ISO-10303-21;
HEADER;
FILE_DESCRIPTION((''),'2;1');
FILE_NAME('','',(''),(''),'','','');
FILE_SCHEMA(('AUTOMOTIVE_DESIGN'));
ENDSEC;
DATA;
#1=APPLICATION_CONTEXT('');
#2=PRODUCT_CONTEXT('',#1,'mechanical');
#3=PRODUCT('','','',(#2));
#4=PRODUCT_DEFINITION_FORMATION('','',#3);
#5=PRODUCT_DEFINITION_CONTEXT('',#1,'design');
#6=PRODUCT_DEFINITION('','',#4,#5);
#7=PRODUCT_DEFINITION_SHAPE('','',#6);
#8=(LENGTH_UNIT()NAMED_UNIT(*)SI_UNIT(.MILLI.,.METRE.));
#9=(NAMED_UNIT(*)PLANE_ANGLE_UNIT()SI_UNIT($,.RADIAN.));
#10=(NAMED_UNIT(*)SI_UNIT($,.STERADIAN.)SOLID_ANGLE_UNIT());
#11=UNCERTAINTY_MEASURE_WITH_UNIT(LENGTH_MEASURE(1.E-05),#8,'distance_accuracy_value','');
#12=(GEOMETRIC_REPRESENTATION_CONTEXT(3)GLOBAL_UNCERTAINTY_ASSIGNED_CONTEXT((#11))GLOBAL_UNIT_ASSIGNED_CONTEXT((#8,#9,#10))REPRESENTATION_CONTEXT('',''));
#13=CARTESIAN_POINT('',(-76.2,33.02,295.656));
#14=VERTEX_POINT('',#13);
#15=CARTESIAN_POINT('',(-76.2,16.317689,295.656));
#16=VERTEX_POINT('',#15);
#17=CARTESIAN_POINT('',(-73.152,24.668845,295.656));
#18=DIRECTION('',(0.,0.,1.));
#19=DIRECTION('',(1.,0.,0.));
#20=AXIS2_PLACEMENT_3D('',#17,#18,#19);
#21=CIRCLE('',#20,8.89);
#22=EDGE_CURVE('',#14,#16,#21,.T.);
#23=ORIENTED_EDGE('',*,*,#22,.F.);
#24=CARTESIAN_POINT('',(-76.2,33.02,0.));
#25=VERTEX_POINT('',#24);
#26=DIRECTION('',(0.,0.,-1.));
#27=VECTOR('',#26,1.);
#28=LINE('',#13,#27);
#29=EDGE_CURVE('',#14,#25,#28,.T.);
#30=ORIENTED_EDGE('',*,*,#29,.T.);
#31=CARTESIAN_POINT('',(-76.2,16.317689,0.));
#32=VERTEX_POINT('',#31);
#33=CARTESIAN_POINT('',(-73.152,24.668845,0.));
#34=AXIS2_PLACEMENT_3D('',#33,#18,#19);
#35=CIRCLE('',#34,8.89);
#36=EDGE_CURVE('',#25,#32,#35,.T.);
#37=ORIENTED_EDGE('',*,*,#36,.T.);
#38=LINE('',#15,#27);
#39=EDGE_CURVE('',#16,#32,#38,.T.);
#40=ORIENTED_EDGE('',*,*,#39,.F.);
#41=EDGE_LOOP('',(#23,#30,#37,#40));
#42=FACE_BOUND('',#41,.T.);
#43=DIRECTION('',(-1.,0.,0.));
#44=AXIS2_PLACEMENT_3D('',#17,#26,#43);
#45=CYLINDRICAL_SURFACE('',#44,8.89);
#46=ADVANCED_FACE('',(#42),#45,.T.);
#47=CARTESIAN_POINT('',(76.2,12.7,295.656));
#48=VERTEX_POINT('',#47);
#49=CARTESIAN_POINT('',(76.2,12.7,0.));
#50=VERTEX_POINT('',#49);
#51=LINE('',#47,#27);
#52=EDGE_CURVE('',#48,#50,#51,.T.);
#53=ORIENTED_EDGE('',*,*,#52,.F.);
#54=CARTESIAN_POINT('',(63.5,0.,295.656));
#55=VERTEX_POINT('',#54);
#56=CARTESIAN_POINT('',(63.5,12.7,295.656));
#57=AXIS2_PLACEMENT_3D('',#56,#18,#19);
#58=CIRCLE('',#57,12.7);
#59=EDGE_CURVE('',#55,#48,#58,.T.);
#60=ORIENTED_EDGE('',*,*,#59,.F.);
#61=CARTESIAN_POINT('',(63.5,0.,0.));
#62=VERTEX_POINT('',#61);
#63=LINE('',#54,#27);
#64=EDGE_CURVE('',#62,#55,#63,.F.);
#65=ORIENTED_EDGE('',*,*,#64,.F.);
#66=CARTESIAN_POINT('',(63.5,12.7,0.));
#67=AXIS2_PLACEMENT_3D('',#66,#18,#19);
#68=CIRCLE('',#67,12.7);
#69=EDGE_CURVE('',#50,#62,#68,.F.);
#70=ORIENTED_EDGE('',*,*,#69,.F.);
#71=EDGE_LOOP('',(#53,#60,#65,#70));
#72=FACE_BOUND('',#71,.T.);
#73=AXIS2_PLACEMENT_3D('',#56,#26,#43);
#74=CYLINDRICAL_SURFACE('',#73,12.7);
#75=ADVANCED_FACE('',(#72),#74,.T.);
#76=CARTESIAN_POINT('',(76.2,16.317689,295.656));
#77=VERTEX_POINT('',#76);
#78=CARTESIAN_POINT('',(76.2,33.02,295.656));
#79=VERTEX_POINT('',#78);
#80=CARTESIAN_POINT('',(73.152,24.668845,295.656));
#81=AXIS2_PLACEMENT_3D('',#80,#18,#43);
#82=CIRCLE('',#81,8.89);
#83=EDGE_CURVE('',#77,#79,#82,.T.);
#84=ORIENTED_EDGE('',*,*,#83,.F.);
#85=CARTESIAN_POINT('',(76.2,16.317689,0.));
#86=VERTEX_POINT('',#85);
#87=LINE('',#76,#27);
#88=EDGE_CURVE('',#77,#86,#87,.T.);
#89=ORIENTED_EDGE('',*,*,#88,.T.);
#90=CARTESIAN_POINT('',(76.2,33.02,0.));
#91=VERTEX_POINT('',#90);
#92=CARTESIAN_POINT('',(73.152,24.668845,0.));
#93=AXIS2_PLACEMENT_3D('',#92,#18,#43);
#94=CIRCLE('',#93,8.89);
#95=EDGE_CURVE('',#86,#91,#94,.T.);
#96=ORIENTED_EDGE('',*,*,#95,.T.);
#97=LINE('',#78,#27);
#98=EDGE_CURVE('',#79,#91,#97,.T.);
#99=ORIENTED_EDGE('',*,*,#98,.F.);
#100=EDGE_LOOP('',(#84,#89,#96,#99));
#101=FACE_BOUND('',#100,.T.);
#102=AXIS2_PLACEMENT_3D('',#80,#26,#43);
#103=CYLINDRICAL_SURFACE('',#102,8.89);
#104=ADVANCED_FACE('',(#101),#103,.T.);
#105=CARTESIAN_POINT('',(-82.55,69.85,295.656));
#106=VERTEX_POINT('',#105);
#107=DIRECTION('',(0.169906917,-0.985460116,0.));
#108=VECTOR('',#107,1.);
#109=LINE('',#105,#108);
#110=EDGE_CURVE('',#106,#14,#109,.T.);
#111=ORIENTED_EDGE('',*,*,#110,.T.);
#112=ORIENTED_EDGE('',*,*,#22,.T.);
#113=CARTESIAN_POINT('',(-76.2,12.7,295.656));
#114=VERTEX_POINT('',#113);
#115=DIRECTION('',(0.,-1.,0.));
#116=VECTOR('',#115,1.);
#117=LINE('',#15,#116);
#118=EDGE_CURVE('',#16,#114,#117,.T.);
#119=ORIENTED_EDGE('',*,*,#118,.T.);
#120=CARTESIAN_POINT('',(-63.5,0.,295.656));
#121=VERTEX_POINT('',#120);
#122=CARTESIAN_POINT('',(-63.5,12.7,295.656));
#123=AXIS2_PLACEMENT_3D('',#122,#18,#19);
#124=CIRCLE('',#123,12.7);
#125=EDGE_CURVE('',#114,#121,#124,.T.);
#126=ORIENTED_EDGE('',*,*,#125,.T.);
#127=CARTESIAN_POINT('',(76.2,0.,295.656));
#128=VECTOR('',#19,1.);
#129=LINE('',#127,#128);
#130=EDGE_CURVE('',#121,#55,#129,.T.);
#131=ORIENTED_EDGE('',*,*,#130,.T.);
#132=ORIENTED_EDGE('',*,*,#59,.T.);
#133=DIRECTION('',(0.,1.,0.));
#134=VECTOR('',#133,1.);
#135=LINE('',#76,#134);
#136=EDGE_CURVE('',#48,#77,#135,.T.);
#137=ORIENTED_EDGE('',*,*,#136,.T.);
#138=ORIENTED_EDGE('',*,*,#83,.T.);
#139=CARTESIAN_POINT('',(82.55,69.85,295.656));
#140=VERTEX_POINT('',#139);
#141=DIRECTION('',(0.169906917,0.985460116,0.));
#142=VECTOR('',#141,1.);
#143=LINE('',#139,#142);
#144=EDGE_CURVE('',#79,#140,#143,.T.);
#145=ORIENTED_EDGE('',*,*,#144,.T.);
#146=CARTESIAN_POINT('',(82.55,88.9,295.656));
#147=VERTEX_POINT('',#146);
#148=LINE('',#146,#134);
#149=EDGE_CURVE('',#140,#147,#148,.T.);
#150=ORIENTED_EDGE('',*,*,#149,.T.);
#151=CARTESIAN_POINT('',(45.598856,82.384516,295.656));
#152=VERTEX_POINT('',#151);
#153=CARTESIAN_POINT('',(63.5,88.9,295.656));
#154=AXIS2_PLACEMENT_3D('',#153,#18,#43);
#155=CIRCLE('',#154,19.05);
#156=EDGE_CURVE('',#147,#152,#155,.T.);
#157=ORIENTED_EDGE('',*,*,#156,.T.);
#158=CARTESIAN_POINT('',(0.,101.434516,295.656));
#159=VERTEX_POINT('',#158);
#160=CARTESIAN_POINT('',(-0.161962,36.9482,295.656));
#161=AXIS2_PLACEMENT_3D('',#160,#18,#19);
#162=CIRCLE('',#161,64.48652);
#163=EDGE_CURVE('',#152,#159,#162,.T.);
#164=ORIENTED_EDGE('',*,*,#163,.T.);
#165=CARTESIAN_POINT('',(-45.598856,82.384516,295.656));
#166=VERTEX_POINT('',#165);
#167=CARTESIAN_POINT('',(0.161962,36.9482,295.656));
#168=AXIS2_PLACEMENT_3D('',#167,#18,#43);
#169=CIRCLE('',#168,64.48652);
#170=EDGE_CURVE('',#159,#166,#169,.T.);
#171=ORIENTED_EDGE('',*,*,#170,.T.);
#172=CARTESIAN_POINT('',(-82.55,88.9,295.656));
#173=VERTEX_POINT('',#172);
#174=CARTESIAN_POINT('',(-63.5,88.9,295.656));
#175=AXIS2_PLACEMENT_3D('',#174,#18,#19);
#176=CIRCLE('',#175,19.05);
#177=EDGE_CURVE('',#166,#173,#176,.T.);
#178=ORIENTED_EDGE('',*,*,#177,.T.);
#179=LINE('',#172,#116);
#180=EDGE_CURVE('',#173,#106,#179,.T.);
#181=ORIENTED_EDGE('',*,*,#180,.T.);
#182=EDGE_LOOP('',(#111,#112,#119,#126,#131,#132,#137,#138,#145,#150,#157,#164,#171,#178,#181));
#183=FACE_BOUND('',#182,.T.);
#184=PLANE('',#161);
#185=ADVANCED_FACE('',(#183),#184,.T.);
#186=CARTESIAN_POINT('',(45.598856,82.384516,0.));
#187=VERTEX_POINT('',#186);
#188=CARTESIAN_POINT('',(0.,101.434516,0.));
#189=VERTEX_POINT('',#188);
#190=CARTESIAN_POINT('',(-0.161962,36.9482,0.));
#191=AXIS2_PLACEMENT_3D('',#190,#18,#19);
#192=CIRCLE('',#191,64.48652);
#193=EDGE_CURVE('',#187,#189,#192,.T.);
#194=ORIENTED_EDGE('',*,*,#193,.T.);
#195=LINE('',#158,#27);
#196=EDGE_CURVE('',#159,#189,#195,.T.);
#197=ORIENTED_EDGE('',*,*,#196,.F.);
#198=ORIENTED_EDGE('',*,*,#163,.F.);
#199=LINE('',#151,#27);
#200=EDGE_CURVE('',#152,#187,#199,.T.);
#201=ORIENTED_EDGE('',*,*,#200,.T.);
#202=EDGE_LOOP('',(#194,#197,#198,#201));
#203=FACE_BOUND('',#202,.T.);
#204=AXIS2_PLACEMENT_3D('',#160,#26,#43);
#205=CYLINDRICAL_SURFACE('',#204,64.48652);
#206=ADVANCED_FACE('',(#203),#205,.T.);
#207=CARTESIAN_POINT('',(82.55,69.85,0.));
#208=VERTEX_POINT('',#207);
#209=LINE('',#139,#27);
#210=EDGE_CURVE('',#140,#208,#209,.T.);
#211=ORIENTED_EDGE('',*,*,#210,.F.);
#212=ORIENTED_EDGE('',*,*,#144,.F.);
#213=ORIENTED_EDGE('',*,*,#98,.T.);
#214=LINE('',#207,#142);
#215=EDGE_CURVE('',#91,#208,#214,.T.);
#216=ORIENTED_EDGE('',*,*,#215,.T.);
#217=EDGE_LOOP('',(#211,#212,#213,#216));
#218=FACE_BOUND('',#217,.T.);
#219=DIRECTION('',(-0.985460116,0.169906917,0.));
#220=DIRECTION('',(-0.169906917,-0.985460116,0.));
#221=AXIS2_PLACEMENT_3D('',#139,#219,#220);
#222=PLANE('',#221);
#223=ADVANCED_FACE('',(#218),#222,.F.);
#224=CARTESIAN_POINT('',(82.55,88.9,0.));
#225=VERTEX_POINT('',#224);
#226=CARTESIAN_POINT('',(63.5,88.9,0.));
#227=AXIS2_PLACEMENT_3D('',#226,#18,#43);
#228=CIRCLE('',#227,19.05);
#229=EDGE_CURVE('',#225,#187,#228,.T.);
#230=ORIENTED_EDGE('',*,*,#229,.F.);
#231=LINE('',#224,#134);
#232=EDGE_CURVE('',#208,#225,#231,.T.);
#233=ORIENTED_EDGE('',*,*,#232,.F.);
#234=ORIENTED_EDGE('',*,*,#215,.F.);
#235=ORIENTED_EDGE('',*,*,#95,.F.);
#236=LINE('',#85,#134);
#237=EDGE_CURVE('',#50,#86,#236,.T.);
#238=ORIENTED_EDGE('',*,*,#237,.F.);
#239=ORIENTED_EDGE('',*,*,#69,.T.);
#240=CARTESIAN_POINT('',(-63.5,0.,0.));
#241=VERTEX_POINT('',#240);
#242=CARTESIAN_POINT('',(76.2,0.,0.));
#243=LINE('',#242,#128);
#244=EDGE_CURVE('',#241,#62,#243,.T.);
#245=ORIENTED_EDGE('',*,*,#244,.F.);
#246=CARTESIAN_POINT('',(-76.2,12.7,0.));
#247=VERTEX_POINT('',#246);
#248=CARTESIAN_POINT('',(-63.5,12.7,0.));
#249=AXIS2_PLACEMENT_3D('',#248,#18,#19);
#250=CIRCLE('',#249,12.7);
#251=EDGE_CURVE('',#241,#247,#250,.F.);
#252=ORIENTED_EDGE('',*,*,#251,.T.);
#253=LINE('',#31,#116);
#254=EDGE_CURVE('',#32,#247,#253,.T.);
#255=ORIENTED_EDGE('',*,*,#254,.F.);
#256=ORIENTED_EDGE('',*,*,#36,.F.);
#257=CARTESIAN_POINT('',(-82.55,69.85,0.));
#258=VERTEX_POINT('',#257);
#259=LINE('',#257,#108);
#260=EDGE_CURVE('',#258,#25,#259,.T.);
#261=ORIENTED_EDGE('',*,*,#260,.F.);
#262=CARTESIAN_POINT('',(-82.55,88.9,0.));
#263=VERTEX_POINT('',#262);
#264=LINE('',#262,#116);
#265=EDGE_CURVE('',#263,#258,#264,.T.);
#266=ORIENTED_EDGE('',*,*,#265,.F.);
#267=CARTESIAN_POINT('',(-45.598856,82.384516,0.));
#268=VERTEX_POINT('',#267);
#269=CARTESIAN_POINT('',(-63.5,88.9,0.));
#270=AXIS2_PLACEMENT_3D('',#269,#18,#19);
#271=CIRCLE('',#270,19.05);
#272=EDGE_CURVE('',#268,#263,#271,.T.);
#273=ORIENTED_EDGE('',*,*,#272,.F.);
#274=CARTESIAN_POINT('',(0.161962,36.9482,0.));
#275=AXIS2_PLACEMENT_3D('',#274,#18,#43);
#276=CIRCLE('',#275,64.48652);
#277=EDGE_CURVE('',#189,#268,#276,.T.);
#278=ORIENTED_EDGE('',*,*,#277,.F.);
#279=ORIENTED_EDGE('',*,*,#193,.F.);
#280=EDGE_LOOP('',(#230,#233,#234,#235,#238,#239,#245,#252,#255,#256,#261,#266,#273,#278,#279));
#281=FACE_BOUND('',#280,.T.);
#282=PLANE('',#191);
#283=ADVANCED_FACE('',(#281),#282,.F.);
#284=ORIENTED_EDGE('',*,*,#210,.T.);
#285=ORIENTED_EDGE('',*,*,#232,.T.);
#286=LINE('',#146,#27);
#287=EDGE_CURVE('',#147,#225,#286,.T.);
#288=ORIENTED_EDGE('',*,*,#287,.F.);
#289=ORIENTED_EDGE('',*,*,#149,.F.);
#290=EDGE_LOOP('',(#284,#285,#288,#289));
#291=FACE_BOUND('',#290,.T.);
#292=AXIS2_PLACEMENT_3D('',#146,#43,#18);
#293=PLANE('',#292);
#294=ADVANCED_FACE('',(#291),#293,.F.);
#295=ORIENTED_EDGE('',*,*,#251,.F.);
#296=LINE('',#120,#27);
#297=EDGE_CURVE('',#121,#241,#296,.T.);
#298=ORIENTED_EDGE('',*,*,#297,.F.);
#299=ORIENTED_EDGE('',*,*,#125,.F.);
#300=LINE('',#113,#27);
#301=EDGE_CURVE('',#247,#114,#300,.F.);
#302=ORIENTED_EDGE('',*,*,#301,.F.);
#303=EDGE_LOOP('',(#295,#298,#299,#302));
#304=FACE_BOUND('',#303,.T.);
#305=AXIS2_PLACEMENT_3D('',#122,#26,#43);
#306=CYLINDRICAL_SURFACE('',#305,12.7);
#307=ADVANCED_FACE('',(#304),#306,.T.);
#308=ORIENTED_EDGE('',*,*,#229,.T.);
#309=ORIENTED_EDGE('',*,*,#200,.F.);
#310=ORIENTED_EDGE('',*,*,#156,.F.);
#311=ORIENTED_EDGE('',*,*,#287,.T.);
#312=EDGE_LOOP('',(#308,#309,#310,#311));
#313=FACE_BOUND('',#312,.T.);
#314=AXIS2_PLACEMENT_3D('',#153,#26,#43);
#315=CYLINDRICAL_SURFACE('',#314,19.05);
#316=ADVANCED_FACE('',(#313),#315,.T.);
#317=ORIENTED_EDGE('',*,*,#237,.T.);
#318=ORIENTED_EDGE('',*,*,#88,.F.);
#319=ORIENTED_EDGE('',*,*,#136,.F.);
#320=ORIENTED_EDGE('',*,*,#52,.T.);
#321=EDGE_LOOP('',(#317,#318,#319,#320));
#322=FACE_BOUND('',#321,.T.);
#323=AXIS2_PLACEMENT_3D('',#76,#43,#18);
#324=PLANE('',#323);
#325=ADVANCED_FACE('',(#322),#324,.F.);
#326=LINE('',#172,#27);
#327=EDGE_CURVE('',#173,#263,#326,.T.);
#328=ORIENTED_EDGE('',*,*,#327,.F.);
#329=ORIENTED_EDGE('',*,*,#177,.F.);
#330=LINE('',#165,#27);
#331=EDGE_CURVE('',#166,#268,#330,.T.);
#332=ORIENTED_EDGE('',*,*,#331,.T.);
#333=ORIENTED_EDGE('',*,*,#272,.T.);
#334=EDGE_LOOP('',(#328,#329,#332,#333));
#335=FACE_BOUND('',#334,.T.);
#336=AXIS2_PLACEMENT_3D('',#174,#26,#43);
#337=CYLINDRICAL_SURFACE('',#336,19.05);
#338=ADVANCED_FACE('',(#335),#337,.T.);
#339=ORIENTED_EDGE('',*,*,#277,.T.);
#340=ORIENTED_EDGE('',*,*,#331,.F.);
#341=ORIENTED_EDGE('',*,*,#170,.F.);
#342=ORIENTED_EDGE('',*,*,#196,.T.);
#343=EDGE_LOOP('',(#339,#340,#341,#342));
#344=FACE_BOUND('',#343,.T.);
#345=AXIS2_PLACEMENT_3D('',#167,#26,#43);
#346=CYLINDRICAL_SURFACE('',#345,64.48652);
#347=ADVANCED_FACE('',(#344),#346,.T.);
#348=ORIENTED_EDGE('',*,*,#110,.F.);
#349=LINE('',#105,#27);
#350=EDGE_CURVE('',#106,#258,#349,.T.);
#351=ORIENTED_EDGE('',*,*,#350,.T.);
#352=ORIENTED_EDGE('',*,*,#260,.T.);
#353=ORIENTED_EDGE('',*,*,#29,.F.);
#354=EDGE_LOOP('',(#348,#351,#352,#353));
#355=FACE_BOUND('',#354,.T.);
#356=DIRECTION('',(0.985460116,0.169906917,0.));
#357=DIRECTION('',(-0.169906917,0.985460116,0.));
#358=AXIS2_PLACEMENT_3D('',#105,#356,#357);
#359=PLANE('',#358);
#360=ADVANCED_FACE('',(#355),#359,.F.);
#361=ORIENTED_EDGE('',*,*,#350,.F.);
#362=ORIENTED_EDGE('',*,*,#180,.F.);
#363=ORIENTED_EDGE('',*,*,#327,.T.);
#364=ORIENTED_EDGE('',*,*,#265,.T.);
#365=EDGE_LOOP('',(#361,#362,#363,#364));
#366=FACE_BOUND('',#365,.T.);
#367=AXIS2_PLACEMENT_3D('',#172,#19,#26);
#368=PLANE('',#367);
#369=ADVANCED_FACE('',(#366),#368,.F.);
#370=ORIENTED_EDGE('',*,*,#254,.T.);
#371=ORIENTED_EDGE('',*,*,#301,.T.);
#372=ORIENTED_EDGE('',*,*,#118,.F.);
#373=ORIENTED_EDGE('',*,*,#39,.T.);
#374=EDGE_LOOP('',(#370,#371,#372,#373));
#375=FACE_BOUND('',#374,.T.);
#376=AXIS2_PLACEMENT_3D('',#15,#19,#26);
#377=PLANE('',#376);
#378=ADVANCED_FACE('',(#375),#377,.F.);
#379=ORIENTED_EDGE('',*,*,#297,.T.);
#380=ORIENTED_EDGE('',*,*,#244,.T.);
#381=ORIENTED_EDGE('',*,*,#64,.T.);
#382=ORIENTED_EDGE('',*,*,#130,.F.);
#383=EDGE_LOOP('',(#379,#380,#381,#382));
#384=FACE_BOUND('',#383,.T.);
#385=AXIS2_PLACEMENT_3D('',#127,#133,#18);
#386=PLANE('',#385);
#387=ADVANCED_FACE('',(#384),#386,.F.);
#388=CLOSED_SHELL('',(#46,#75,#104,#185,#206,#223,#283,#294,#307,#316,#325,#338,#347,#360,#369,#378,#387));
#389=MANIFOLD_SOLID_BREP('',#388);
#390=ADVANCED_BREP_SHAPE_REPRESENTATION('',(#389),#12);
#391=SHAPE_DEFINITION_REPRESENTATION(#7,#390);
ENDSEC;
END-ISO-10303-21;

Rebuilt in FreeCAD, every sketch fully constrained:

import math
import FreeCAD as App
import Part
import Sketcher

V = App.Vector
Q = App.Units.Quantity


def edges_at(feature, points):
    """Names of the edges that pass closest to the given points."""
    edges = feature.Shape.Edges
    near = lambda p: min(range(len(edges)), key=lambda i: edges[i].distToShape(Part.Vertex(*p))[0])
    return sorted({f"Edge{near(p) + 1}" for p in points})

doc = App.newDocument("Part")
body = doc.addObject("PartDesign::Body", "Body")

# Sketch on XY plane
sketch1 = doc.addObject("Sketcher::SketchObject", "Sketch")
body.addObject(sketch1)
sketch1.AttachmentSupport = (doc.XY_Plane, [""])
sketch1.MapMode = "FlatFace"
sketch1.addGeometry([
    Part.LineSegment(V(82.55, 69.85, 0), V(82.55, 88.9, 0)),  # 0
    Part.ArcOfCircle(Part.Circle(V(63.5, 88.9, 0), V(0, 0, 1), 19.05), math.radians(0), math.radians(200)),  # 1
    Part.ArcOfCircle(Part.Circle(V(-0.161962, 36.9482, 0), V(0, 0, 1), 64.48652), math.radians(44.796129), math.radians(89.856098)),  # 2
    Part.ArcOfCircle(Part.Circle(V(0.161962, 36.9482, 0), V(0, 0, 1), 64.48652), math.radians(90.143902), math.radians(135.203871)),  # 3
    Part.ArcOfCircle(Part.Circle(V(-63.5, 88.9, 0), V(0, 0, 1), 19.05), math.radians(-20), math.radians(180)),  # 4
    Part.LineSegment(V(-82.55, 88.9, 0), V(-82.55, 69.85, 0)),  # 5
    Part.LineSegment(V(-82.55, 69.85, 0), V(-76.2, 33.02, 0)),  # 6
    Part.ArcOfCircle(Part.Circle(V(-73.152, 24.668845, 0), V(0, 0, 1), 8.89), math.radians(110.051043), math.radians(249.948957)),  # 7
    Part.LineSegment(V(-76.2, 16.317689, 0), V(-76.2, 0, 0)),  # 8
    Part.LineSegment(V(-76.2, 0, 0), V(76.2, 0, 0)),  # 9
    Part.LineSegment(V(76.2, 0, 0), V(76.2, 16.317689, 0)),  # 10
    Part.ArcOfCircle(Part.Circle(V(73.152, 24.668845, 0), V(0, 0, 1), 8.89), math.radians(-69.948957), math.radians(69.948957)),  # 11
    Part.LineSegment(V(76.2, 33.02, 0), V(82.55, 69.85, 0)),  # 12
], False)
sketch1.addConstraint([
    Sketcher.Constraint("Tangent", 0, 2, 1, 1),
    Sketcher.Constraint("Coincident", 1, 2, 2, 1),
    Sketcher.Constraint("Coincident", 2, 2, 3, 1),
    Sketcher.Constraint("Coincident", 3, 2, 4, 1),
    Sketcher.Constraint("Tangent", 4, 2, 5, 1),
    Sketcher.Constraint("Coincident", 5, 2, 6, 1),
    Sketcher.Constraint("Coincident", 6, 2, 7, 1),
    Sketcher.Constraint("Coincident", 7, 2, 8, 1),
    Sketcher.Constraint("Coincident", 8, 2, 9, 1),
    Sketcher.Constraint("Coincident", 9, 2, 10, 1),
    Sketcher.Constraint("Coincident", 10, 2, 11, 1),
    Sketcher.Constraint("Coincident", 11, 2, 12, 1),
    Sketcher.Constraint("Coincident", 12, 2, 0, 1),
    Sketcher.Constraint("Vertical", 0),
    Sketcher.Constraint("Vertical", 5),
    Sketcher.Constraint("Vertical", 8),
    Sketcher.Constraint("Horizontal", 9),
    Sketcher.Constraint("Vertical", 10),
    Sketcher.Constraint("Equal", 2, 3),
    Sketcher.Constraint("Equal", 1, 4),
    Sketcher.Constraint("Equal", 7, 11),
    Sketcher.Constraint("Symmetric", 8, 2, 9, 2, -1, 1),
    Sketcher.Constraint("Symmetric", 2, 3, 3, 3, -2),
    Sketcher.Constraint("Symmetric", 1, 3, 4, 3, -2),
    Sketcher.Constraint("Symmetric", 7, 3, 11, 3, -2),
    Sketcher.Constraint("Horizontal", 6, 2, 11, 2),
    Sketcher.Constraint("Horizontal", 5, 2, 12, 2),
    Sketcher.Constraint("Vertical", 6, 2, 7, 2),
    Sketcher.Constraint("DistanceX", 9, 1, 9, 2, Q("6 in")),
    Sketcher.Constraint("Radius", 1, Q("0.75 in")),
    Sketcher.Constraint("Radius", 7, Q("0.35 in")),
    Sketcher.Constraint("DistanceX", 4, 3, 1, 3, Q("5 in")),
    Sketcher.Constraint("DistanceY", 0, 1, 0, 2, Q("0.75 in")),
    Sketcher.Constraint("DistanceY", -1, 1, 1, 3, Q("3.5 in")),
    Sketcher.Constraint("DistanceY", -1, 1, 6, 2, Q("1.3 in")),
    Sketcher.Constraint("DistanceX", 7, 3, -1, 1, Q("2.88 in")),
    Sketcher.Constraint("DistanceY", 1, 2, 2, 2, Q("0.75 in")),
    Sketcher.Constraint("Radius", 2, Q("64.48652 mm")),
    Sketcher.Constraint("DistanceY", -1, 1, 2, 3, Q("36.9482 mm")),
])
pad1 = doc.addObject("PartDesign::Pad", "Pad")
body.addObject(pad1)
pad1.Profile = sketch1
pad1.Length = Q("11.64 in")
doc.recompute()

fillet = doc.addObject("PartDesign::Fillet", "Fillet")
body.addObject(fillet)
fillet.Base = (pad1, edges_at(pad1, [(76.2, 0, 147.828), (-76.2, 0, 147.828)]))
fillet.Radius = Q("0.5 in")

doc.recompute()
